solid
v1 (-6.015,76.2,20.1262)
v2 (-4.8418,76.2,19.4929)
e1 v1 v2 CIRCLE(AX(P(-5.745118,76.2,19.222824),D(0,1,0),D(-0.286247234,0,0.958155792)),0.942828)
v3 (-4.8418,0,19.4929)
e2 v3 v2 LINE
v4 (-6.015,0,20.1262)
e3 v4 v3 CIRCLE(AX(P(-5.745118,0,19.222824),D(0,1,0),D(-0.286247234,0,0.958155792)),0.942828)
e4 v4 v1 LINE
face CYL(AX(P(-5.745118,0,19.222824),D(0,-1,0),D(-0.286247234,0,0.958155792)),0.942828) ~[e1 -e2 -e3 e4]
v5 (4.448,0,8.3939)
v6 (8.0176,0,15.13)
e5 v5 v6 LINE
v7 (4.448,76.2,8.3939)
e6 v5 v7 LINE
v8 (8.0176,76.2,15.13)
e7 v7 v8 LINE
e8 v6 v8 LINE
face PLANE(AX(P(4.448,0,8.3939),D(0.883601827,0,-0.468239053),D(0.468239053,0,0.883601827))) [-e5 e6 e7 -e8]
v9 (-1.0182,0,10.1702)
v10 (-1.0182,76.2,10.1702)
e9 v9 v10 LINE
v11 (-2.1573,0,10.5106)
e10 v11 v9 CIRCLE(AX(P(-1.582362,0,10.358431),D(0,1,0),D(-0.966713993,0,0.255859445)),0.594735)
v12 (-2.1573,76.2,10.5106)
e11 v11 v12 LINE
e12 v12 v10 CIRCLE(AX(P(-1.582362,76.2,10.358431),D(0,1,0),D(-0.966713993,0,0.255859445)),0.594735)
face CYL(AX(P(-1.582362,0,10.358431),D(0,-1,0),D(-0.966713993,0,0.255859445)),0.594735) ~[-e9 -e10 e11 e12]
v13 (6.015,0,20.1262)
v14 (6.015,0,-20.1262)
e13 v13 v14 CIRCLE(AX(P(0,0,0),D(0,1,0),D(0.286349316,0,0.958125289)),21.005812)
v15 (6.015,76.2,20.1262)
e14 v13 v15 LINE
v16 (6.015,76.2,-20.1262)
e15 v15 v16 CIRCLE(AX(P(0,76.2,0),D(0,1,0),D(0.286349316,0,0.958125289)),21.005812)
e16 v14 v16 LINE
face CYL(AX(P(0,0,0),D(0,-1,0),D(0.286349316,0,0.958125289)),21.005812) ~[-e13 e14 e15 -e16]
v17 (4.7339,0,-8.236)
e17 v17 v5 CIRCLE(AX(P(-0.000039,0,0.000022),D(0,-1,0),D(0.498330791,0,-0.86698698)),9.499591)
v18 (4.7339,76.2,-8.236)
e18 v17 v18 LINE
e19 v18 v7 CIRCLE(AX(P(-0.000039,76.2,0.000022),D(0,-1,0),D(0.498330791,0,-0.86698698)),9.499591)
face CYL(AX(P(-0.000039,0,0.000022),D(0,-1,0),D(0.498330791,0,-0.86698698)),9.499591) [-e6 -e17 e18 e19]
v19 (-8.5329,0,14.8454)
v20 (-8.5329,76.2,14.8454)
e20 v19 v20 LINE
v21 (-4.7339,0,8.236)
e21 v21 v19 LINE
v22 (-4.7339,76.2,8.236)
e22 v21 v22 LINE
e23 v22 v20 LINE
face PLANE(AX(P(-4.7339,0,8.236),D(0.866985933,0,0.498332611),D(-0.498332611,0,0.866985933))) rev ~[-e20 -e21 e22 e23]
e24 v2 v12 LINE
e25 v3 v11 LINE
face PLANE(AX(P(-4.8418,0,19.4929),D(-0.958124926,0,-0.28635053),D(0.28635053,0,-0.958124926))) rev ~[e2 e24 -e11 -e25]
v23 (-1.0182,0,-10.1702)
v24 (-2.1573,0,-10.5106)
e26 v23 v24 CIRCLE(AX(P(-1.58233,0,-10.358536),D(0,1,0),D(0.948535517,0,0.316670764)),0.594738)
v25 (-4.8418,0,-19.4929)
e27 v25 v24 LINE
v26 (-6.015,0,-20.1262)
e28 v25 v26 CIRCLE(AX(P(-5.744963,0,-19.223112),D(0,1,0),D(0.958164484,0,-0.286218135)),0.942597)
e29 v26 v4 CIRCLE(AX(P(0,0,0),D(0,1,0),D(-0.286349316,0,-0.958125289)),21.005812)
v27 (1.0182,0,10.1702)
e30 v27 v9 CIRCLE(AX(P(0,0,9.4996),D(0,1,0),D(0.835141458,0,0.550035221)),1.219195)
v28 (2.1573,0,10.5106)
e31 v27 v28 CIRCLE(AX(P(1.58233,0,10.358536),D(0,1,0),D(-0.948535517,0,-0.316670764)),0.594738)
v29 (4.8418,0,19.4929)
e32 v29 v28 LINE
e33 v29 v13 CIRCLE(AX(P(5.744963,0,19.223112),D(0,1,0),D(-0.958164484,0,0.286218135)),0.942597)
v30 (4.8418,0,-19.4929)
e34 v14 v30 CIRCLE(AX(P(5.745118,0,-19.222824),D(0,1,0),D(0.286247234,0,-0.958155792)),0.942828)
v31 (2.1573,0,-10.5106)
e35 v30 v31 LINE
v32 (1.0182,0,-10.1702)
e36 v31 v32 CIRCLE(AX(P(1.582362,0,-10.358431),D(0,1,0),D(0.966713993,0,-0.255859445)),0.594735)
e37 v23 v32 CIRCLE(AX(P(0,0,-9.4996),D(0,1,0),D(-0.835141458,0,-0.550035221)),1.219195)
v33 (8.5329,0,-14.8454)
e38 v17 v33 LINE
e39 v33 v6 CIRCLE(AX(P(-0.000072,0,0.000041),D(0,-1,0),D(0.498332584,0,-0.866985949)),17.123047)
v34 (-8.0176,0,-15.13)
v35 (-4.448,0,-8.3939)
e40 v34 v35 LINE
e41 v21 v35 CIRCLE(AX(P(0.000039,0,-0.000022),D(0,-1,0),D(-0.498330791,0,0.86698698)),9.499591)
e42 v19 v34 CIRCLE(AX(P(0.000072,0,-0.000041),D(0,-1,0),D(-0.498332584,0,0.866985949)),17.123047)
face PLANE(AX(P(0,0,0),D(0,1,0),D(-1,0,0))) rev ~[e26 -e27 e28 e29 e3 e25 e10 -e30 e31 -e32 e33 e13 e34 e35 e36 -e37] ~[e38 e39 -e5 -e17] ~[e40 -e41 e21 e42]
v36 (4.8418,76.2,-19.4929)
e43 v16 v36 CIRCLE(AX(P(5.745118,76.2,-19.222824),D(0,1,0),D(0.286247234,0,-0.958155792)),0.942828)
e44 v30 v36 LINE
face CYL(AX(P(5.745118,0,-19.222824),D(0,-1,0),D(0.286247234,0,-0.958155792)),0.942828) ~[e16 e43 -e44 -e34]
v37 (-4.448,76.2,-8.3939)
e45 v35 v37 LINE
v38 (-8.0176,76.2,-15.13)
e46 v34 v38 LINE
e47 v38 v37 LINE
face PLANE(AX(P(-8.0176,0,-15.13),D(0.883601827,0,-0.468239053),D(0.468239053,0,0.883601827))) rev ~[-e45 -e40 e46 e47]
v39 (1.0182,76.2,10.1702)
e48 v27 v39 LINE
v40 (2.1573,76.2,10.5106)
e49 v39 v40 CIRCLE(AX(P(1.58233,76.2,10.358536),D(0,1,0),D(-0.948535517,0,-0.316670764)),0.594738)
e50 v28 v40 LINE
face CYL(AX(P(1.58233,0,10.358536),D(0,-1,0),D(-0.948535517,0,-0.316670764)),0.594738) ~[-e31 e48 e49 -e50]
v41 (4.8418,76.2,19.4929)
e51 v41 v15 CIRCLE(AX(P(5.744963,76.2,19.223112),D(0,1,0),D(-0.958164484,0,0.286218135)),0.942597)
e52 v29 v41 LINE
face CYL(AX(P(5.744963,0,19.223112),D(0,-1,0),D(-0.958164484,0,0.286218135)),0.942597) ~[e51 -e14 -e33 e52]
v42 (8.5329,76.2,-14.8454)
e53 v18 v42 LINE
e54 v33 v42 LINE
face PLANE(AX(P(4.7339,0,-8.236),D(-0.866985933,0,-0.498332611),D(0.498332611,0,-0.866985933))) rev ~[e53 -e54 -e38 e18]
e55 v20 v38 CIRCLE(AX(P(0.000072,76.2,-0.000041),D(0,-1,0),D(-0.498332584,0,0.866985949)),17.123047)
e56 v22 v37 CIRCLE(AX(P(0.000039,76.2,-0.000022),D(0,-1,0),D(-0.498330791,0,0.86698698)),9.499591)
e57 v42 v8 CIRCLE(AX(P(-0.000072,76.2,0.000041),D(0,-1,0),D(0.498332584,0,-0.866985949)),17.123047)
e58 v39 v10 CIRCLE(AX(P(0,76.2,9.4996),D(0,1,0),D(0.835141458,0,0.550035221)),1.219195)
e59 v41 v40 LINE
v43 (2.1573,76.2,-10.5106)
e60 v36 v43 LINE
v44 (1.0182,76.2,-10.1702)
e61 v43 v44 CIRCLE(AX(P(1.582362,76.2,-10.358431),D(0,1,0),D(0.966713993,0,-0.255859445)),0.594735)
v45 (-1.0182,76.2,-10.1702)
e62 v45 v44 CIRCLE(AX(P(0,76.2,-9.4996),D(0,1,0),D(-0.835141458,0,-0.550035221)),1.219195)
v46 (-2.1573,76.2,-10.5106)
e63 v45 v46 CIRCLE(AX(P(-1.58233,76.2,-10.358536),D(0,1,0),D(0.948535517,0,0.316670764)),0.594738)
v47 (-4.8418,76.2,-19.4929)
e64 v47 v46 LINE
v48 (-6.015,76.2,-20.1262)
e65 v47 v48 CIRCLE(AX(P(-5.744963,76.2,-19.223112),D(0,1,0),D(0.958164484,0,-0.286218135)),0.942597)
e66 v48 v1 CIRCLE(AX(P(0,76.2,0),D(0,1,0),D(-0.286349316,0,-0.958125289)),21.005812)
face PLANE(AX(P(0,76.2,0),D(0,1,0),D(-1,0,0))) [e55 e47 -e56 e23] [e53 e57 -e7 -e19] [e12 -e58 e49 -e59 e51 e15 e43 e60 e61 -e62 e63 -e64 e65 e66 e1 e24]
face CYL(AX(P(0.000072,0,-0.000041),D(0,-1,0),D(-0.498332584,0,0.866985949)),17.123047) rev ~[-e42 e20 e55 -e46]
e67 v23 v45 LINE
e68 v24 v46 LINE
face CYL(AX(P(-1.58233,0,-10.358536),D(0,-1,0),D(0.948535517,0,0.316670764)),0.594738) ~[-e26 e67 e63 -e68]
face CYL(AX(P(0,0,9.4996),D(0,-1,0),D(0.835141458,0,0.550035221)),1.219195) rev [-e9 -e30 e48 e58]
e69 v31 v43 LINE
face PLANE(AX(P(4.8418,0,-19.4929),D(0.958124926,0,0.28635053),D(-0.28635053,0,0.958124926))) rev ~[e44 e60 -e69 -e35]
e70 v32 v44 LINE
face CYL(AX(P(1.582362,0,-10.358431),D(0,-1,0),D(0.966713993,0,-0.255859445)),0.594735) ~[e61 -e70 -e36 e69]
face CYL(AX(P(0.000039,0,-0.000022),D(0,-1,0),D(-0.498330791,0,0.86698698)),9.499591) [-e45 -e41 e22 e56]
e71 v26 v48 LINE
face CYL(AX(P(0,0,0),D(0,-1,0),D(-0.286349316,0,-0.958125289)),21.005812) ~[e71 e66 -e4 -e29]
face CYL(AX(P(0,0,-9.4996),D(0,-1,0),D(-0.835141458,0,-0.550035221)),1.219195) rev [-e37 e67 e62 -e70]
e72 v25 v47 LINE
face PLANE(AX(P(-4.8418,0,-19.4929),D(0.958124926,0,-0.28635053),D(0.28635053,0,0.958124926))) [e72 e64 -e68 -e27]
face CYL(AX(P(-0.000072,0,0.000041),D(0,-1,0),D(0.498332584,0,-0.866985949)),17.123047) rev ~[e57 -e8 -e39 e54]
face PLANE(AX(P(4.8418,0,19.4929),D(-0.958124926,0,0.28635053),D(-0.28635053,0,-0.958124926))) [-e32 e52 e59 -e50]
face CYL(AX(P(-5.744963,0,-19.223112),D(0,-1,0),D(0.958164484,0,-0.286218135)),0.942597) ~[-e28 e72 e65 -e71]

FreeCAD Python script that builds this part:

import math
import FreeCAD as App
import Part
import Sketcher
Q = App.Units.Quantity

doc = App.newDocument("Part")
body = doc.addObject("PartDesign::Body", "Body")

sketch1 = doc.addObject("Sketcher::SketchObject", "Sketch")
body.addObject(sketch1)
sketch1.AttachmentSupport = (doc.XZ_Plane, [""])
sketch1.MapMode = "FlatFace"
sketch1.addGeometry([
    Part.ArcOfCircle(Part.Circle(App.Vector(0, -9.5, 0), App.Vector(0, 0, 1), 1.2), math.radians(-33), math.radians(213)),
    Part.ArcOfCircle(Part.Circle(App.Vector(-1.6, -10.4, 0), App.Vector(0, 0, 1), 0.6), math.radians(-165), math.radians(18)),
    Part.LineSegment(App.Vector(-2.2, -10.5, 0), App.Vector(-4.8, -19.5, 0)),
    Part.ArcOfCircle(Part.Circle(App.Vector(-5.7, -19.2, 0), App.Vector(0, 0, 1), 0.9), math.radians(-107), math.radians(-17)),
    Part.ArcOfCircle(Part.Circle(App.Vector(0, 0, 0), App.Vector(0, 0, 1), 21), math.radians(107), math.radians(253)),
    Part.ArcOfCircle(Part.Circle(App.Vector(-5.7, 19.2, 0), App.Vector(0, 0, 1), 0.9), math.radians(17), math.radians(107)),
    Part.LineSegment(App.Vector(-4.8, 19.5, 0), App.Vector(-2.2, 10.5, 0)),
    Part.ArcOfCircle(Part.Circle(App.Vector(-1.6, 10.4, 0), App.Vector(0, 0, 1), 0.6), math.radians(-18), math.radians(165)),
    Part.ArcOfCircle(Part.Circle(App.Vector(0, 9.5, 0), App.Vector(0, 0, 1), 1.2), math.radians(147), math.radians(393)),
    Part.ArcOfCircle(Part.Circle(App.Vector(1.6, 10.4, 0), App.Vector(0, 0, 1), 0.6), math.radians(15), math.radians(198)),
    Part.LineSegment(App.Vector(2.2, 10.5, 0), App.Vector(4.8, 19.5, 0)),
    Part.ArcOfCircle(Part.Circle(App.Vector(5.7, 19.2, 0), App.Vector(0, 0, 1), 0.9), math.radians(73), math.radians(163)),
    Part.ArcOfCircle(Part.Circle(App.Vector(0, 0, 0), App.Vector(0, 0, 1), 21), math.radians(-73), math.radians(73)),
    Part.ArcOfCircle(Part.Circle(App.Vector(5.7, -19.2, 0), App.Vector(0, 0, 1), 0.9), math.radians(-163), math.radians(-73)),
    Part.LineSegment(App.Vector(4.8, -19.5, 0), App.Vector(2.2, -10.5, 0)),
    Part.ArcOfCircle(Part.Circle(App.Vector(1.6, -10.4, 0), App.Vector(0, 0, 1), 0.6), math.radians(162), math.radians(345)),
], False)
sketch1.addConstraint([
    Sketcher.Constraint("Coincident", 0, 2, 1, 2),
    Sketcher.Constraint("Coincident", 1, 1, 2, 1),
    Sketcher.Constraint("Tangent", 2, 2, 3, 2),
    Sketcher.Constraint("Tangent", 3, 1, 4, 2),
    Sketcher.Constraint("Tangent", 4, 1, 5, 2),
    Sketcher.Constraint("Tangent", 5, 1, 6, 1),
    Sketcher.Constraint("Coincident", 6, 2, 7, 2),
    Sketcher.Constraint("Coincident", 7, 1, 8, 1),
    Sketcher.Constraint("Coincident", 8, 2, 9, 2),
    Sketcher.Constraint("Coincident", 9, 1, 10, 1),
    Sketcher.Constraint("Tangent", 10, 2, 11, 2),
    Sketcher.Constraint("Tangent", 11, 1, 12, 2),
    Sketcher.Constraint("Tangent", 12, 1, 13, 2),
    Sketcher.Constraint("Tangent", 13, 1, 14, 1),
    Sketcher.Constraint("Coincident", 14, 2, 15, 2),
    Sketcher.Constraint("Coincident", 15, 1, 0, 1),
    Sketcher.Constraint("Coincident", 4, 3, -1, 1),
    Sketcher.Constraint("Coincident", 12, 3, -1, 1),
    Sketcher.Constraint("Equal", 3, 5),
    Sketcher.Constraint("Equal", 1, 7),
    Sketcher.Constraint("Equal", 0, 8),
    Sketcher.Constraint("Equal", 7, 9),
    Sketcher.Constraint("Equal", 5, 11),
    Sketcher.Constraint("Equal", 4, 12),
    Sketcher.Constraint("Equal", 11, 13),
    Sketcher.Constraint("Equal", 9, 15),
    Sketcher.Constraint("Symmetric", 0, 3, 8, 3, -1, 1),
    Sketcher.Constraint("Symmetric", 1, 3, 9, 3, -1, 1),
    Sketcher.Constraint("Symmetric", 7, 3, 15, 3, -1, 1),
    Sketcher.Constraint("Symmetric", 2, 2, 10, 2, -1, 1),
    Sketcher.Constraint("Symmetric", 5, 1, 13, 1, -1, 1),
    Sketcher.Constraint("Symmetric", 7, 3, 9, 3, -2),
    Sketcher.Constraint("Symmetric", 5, 1, 10, 2, -2),
    Sketcher.Constraint("PointOnObject", 0, 3, -2),
    Sketcher.Constraint("Radius", 0, Q("0.048 in")),
    Sketcher.Constraint("Radius", 4, Q("0.827 in")),
    Sketcher.Constraint("Angle", 2, Q("-106.6396 deg")),
    Sketcher.Constraint("Radius", 1, 0.5948),
    Sketcher.Constraint("Radius", 3, 0.9428),
    Sketcher.Constraint("DistanceY", 0, 3, -1, 1, Q("0.374 in")),
    Sketcher.Constraint("DistanceY", 3, 3, 1, 3, Q("0.349 in")),
    Sketcher.Constraint("DistanceY", 1, 1, 1, 3, Q("0.006 in")),
    Sketcher.Constraint("DistanceX", 4, 1, 11, 3, Q("0.463 in")),
])
pad1 = doc.addObject("PartDesign::Pad", "Pad")
body.addObject(pad1)
pad1.Profile = sketch1
pad1.Length = Q("3 in")
pad1.Reversed = True

sketch2 = doc.addObject("Sketcher::SketchObject", "Sketch001")
body.addObject(sketch2)
sketch2.AttachmentSupport = (doc.XZ_Plane, [""])
sketch2.MapMode = "FlatFace"
sketch2.addGeometry([
    Part.ArcOfCircle(Part.Circle(App.Vector(0, 0, 0), App.Vector(0, 0, 1), 17), math.radians(120), math.radians(242)),
    Part.LineSegment(App.Vector(-8, -15, 0), App.Vector(-4, -8, 0)),
    Part.ArcOfCircle(Part.Circle(App.Vector(0, 0, 0), App.Vector(0, 0, 1), 9), math.radians(120), math.radians(242)),
    Part.LineSegment(App.Vector(-5, 8, 0), App.Vector(-9, 15, 0)),
    Part.LineSegment(App.Vector(8, 15, 0), App.Vector(4, 8, 0)),
    Part.ArcOfCircle(Part.Circle(App.Vector(0, 0, 0), App.Vector(0, 0, 1), 9), math.radians(-60), math.radians(62)),
    Part.LineSegment(App.Vector(5, -8, 0), App.Vector(9, -15, 0)),
    Part.ArcOfCircle(Part.Circle(App.Vector(0, 0, 0), App.Vector(0, 0, 1), 17), math.radians(-60), math.radians(62)),
], False)
sketch2.addConstraint([
    Sketcher.Constraint("Coincident", 0, 2, 1, 1),
    Sketcher.Constraint("Coincident", 1, 2, 2, 2),
    Sketcher.Constraint("Coincident", 2, 1, 3, 1),
    Sketcher.Constraint("Coincident", 3, 2, 0, 1),
    Sketcher.Constraint("Coincident", 4, 2, 5, 2),
    Sketcher.Constraint("Coincident", 5, 1, 6, 1),
    Sketcher.Constraint("Coincident", 6, 2, 7, 1),
    Sketcher.Constraint("Coincident", 7, 2, 4, 1),
    Sketcher.Constraint("Coincident", 0, 3, -1, 1),
    Sketcher.Constraint("Coincident", 2, 3, -1, 1),
    Sketcher.Constraint("Coincident", 5, 3, -1, 1),
    Sketcher.Constraint("Coincident", 7, 3, -1, 1),
    Sketcher.Constraint("Equal", 2, 5),
    Sketcher.Constraint("Equal", 0, 7),
    Sketcher.Constraint("Parallel", 1, 4),
    Sketcher.Constraint("Parallel", 3, 6),
    Sketcher.Constraint("Radius", 2, Q("0.374 in")),
    Sketcher.Constraint("Angle", 1, Q("62.08 deg")),
    Sketcher.Constraint("Angle", 3, Q("119.8897 deg")),
    Sketcher.Constraint("Radius", 0, 17.123),
    Sketcher.Constraint("DistanceY", 6, 2, 1, 2, Q("0.254 in")),
    Sketcher.Constraint("DistanceX", 2, 1, 4, 2, Q("0.3615 in")),
    Sketcher.Constraint("DistanceX", 1, 2, 5, 1, Q("0.3615 in")),
    Sketcher.Constraint("DistanceY", 3, 2, 7, 2, Q("0.0112 in")),
])
pocket1 = doc.addObject("PartDesign::Pocket", "Pocket")
body.addObject(pocket1)
pocket1.Profile = sketch2
pocket1.Length = Q("3 in")

doc.recompute()
